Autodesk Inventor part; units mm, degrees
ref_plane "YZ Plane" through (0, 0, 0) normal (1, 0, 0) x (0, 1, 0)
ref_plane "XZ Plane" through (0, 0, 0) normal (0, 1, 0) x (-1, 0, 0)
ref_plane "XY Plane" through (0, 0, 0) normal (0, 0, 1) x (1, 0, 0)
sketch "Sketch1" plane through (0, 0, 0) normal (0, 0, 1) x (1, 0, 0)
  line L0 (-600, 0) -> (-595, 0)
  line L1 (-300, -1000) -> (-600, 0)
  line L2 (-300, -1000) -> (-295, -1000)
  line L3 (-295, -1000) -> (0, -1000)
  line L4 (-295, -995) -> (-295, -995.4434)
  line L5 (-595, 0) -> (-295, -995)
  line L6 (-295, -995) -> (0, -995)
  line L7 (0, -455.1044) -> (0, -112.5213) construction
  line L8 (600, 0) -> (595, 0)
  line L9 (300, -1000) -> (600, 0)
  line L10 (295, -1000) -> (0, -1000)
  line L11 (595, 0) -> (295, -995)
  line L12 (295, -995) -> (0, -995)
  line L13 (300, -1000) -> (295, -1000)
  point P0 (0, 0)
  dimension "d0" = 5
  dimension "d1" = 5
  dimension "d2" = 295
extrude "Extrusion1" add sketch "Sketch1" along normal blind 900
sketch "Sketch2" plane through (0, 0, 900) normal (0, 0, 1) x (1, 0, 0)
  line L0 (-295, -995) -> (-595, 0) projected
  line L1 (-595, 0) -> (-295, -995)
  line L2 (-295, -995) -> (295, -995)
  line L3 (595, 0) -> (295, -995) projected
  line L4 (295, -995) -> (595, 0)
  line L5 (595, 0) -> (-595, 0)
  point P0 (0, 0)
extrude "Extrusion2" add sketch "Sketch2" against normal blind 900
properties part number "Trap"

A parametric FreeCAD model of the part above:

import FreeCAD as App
import Part
import Sketcher
from FreeCAD import Vector
Q = App.Units.Quantity

doc = App.newDocument("Part")
body = doc.addObject("PartDesign::Body", "Body")

sketch1 = doc.addObject("Sketcher::SketchObject", "Sketch")
body.addObject(sketch1)
sketch1.AttachmentSupport = (doc.XY_Plane, [""])
sketch1.MapMode = "FlatFace"
sketch1.addGeometry([
    Part.LineSegment(Vector(-595, 0, 0), Vector(-600, 0, 0)),
    Part.LineSegment(Vector(-600, 0, 0), Vector(-300, -1000, 0)),
    Part.LineSegment(Vector(-300, -1000, 0), Vector(300, -1000, 0)),
    Part.LineSegment(Vector(300, -1000, 0), Vector(600, 0, 0)),
    Part.LineSegment(Vector(600, 0, 0), Vector(595, 0, 0)),
    Part.LineSegment(Vector(595, 0, 0), Vector(295, -995, 0)),
    Part.LineSegment(Vector(295, -995, 0), Vector(-295, -995, 0)),
    Part.LineSegment(Vector(-295, -995, 0), Vector(-595, 0, 0)),
], False)
sketch1.addConstraint([
    Sketcher.Constraint("Coincident", 0, 2, 1, 1),
    Sketcher.Constraint("Coincident", 1, 2, 2, 1),
    Sketcher.Constraint("Coincident", 2, 2, 3, 1),
    Sketcher.Constraint("Coincident", 3, 2, 4, 1),
    Sketcher.Constraint("Coincident", 4, 2, 5, 1),
    Sketcher.Constraint("Coincident", 5, 2, 6, 1),
    Sketcher.Constraint("Coincident", 6, 2, 7, 1),
    Sketcher.Constraint("Coincident", 7, 2, 0, 1),
    Sketcher.Constraint("Horizontal", 0),
    Sketcher.Constraint("Horizontal", 2),
    Sketcher.Constraint("Horizontal", 4),
    Sketcher.Constraint("Horizontal", 6),
    Sketcher.Constraint("Symmetric", 0, 2, 3, 2, -1, 1),
    Sketcher.Constraint("Symmetric", 4, 2, 7, 2, -2),
    Sketcher.Constraint("Equal", 1, 3),
    Sketcher.Constraint("Equal", 5, 7),
    Sketcher.Constraint("DistanceX", 0, 2, 0, 1, Q("5 mm")),
    Sketcher.Constraint("DistanceX", -1, 1, 5, 2, Q("295 mm")),
    Sketcher.Constraint("DistanceX", 2, 2, 4, 2, Q("295 mm")),
    Sketcher.Constraint("DistanceX", 5, 2, 2, 2, Q("5 mm")),
    Sketcher.Constraint("DistanceY", 2, 2, 5, 2, Q("5 mm")),
    Sketcher.Constraint("DistanceY", 1, 2, -1, 1, Q("1000 mm")),
])
pad1 = doc.addObject("PartDesign::Pad", "Pad")
body.addObject(pad1)
pad1.Profile = sketch1
pad1.Length = 900

sketch2 = doc.addObject("Sketcher::SketchObject", "Sketch001")
body.addObject(sketch2)
sketch2.AttachmentSupport = (doc.XY_Plane, [""])
sketch2.MapMode = "FlatFace"
sketch2.AttachmentOffset = App.Placement(Vector(0, 0, 900), App.Rotation())
sketch2.addGeometry([
    Part.LineSegment(Vector(-595, 0, 0), Vector(-295, -995, 0)),
    Part.LineSegment(Vector(-295, -995, 0), Vector(295, -995, 0)),
    Part.LineSegment(Vector(295, -995, 0), Vector(595, 0, 0)),
    Part.LineSegment(Vector(595, 0, 0), Vector(-595, 0, 0)),
], False)
sketch2.addConstraint([
    Sketcher.Constraint("Coincident", 0, 2, 1, 1),
    Sketcher.Constraint("Coincident", 1, 2, 2, 1),
    Sketcher.Constraint("Coincident", 2, 2, 3, 1),
    Sketcher.Constraint("Coincident", 3, 2, 0, 1),
    Sketcher.Constraint("Horizontal", 1),
    Sketcher.Constraint("Horizontal", 3),
    Sketcher.Constraint("Symmetric", 2, 2, 3, 2, -1, 1),
    Sketcher.Constraint("Equal", 0, 2),
    Sketcher.Constraint("DistanceX", 1, 1, 1, 2, Q("590 mm")),
    Sketcher.Constraint("DistanceX", 3, 2, 3, 1, Q("1190 mm")),
    Sketcher.Constraint("DistanceY", 0, 2, -1, 1, Q("995 mm")),
])
pad2 = doc.addObject("PartDesign::Pad", "Pad001")
body.addObject(pad2)
pad2.Profile = sketch2
pad2.Length = 900
pad2.Reversed = True

doc.recompute()
